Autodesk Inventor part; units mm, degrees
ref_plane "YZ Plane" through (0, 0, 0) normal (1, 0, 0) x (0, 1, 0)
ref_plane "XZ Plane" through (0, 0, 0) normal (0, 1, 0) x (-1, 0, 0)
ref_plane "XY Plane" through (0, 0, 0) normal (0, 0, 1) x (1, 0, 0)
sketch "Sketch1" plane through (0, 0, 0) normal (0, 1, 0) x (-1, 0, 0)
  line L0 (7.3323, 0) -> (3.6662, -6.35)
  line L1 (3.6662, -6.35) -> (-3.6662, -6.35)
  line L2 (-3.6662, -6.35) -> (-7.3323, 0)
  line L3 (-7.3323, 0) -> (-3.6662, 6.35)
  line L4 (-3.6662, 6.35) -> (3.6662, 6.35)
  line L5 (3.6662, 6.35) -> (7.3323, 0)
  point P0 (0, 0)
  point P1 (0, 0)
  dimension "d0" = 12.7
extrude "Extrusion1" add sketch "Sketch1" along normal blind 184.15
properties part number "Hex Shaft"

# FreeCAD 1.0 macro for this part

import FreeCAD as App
import Part
import Sketcher
from FreeCAD import Vector
Q = App.Units.Quantity

doc = App.newDocument("Part")
params = doc.addObject("Spreadsheet::Sheet", "Params")
for row, (alias, value) in enumerate([
    ("pad1_length", "7.25 in"),
], start=1):
    params.set(f"A{row}", alias)
    params.set(f"B{row}", "=" + value)
    params.setAlias(f"B{row}", alias)

body = doc.addObject("PartDesign::Body", "Body")

# Sketch on XZ plane
sketch1 = body.newObject("Sketcher::SketchObject", "Sketch")
sketch1.AttachmentSupport = (doc.getObject("XZ_Plane"), [""])
sketch1.MapMode = "FlatFace"
sketch1.addGeometry(Part.LineSegment(Vector(-4, -6, 0), Vector(-7, 0, 0)), False)
sketch1.addGeometry(Part.LineSegment(Vector(-7, 0, 0), Vector(-4, 6, 0)), False)
sketch1.addGeometry(Part.LineSegment(Vector(-4, 6, 0), Vector(4, 6, 0)), False)
sketch1.addGeometry(Part.LineSegment(Vector(4, 6, 0), Vector(7, 0, 0)), False)
sketch1.addGeometry(Part.LineSegment(Vector(7, 0, 0), Vector(4, -6, 0)), False)
sketch1.addGeometry(Part.LineSegment(Vector(4, -6, 0), Vector(-4, -6, 0)), False)
sketch1.addConstraint(Sketcher.Constraint("Coincident", 0, 2, 1, 1))
sketch1.addConstraint(Sketcher.Constraint("Coincident", 1, 2, 2, 1))
sketch1.addConstraint(Sketcher.Constraint("Coincident", 2, 2, 3, 1))
sketch1.addConstraint(Sketcher.Constraint("Coincident", 3, 2, 4, 1))
sketch1.addConstraint(Sketcher.Constraint("Coincident", 4, 2, 5, 1))
sketch1.addConstraint(Sketcher.Constraint("Coincident", 5, 2, 0, 1))
sketch1.addConstraint(Sketcher.Constraint("Horizontal", 2))
sketch1.addConstraint(Sketcher.Constraint("Horizontal", 5))
sketch1.addConstraint(Sketcher.Constraint("Symmetric", 0, 2, 3, 2, -1, 1))
sketch1.addConstraint(Sketcher.Constraint("Symmetric", 1, 2, 4, 2, -1, 1))
sketch1.addConstraint(Sketcher.Constraint("PointOnObject", 0, 2, -1))
sketch1.addConstraint(Sketcher.Constraint("Parallel", 0, 3))
sketch1.addConstraint(Sketcher.Constraint("Vertical", 2, 2, 4, 2))
sketch1.addConstraint(Sketcher.Constraint("DistanceY", 4, 2, 2, 2, Q("0.5 in")))
sketch1.addConstraint(Sketcher.Constraint("Angle", 0, Q("119.9995 deg")))
sketch1.addConstraint(Sketcher.Constraint("DistanceX", 0, 2, 2, 2, Q("0.433 in")))
pad1 = body.newObject("PartDesign::Pad", "Pad")
pad1.Profile = sketch1
pad1.setExpression("Length", "Params.pad1_length")
pad1.Reversed = True

doc.recompute()
